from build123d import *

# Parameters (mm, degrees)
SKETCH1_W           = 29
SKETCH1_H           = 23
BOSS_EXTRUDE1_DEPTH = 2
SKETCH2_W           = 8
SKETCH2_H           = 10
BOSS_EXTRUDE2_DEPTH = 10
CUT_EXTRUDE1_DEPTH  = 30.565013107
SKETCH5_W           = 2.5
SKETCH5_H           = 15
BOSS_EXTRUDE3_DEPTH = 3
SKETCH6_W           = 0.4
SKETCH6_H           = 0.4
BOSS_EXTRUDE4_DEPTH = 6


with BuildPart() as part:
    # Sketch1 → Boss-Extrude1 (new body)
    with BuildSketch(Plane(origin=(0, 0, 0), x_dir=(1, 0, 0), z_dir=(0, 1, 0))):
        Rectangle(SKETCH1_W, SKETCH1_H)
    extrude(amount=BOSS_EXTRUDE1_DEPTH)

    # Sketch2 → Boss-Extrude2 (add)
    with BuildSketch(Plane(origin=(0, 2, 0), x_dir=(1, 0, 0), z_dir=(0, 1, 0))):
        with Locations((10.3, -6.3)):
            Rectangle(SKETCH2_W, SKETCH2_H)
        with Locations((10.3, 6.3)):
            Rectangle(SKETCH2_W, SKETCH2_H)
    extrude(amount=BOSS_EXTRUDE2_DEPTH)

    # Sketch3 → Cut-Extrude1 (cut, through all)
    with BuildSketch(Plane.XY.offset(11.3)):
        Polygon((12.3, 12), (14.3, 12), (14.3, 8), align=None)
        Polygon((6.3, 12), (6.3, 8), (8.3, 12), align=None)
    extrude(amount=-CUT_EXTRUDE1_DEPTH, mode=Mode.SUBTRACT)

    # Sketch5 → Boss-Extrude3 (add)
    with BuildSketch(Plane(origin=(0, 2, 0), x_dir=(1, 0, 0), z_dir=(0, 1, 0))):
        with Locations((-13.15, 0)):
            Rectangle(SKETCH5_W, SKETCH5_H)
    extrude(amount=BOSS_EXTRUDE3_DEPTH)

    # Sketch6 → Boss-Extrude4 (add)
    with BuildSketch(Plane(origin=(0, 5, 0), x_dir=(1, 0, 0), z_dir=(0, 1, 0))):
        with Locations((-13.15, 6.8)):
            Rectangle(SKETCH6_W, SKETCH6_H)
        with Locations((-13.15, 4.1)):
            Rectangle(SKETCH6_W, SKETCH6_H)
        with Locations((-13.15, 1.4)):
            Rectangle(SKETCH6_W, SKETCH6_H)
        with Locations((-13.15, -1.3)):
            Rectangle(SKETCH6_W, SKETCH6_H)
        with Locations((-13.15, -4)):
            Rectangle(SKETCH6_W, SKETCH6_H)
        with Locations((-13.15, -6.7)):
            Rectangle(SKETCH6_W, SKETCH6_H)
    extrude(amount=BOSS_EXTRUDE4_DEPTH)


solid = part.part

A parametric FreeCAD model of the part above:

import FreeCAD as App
import Part
import Sketcher


def add_polygon(sketch, points):
    """Adds a closed chain of lines whose ends are joined by coincident constraints."""
    first, n = sketch.GeometryCount, len(points)
    for a, b in zip(points, points[1:] + points[:1]):
        sketch.addGeometry(Part.LineSegment(App.Vector(*a, 0), App.Vector(*b, 0)), False)
    for i in range(n):
        sketch.addConstraint(Sketcher.Constraint("Coincident", first + i, 2, first + (i + 1) % n, 1))

doc = App.newDocument("Part")
body = doc.addObject("PartDesign::Body", "Body")

# Sketch on XZ plane
sketch1 = body.newObject("Sketcher::SketchObject", "Sketch")
sketch1.AttachmentSupport = (doc.getObject("XZ_Plane"), [""])
sketch1.MapMode = "FlatFace"
add_polygon(sketch1, [(-14, -12), (-14, 12), (14, 12), (14, -12)])  # lines 0-3
sketch1.addConstraint(Sketcher.Constraint("Vertical", 0))
sketch1.addConstraint(Sketcher.Constraint("Horizontal", 1))
sketch1.addConstraint(Sketcher.Constraint("Vertical", 2))
sketch1.addConstraint(Sketcher.Constraint("Horizontal", 3))
sketch1.addConstraint(Sketcher.Constraint("Symmetric", 0, 2, 2, 2, -1, 1))
sketch1.addConstraint(Sketcher.Constraint("DistanceX", 1, 1, 1, 2, 29.0))
sketch1.addConstraint(Sketcher.Constraint("DistanceY", 0, 1, 0, 2, 23.0))
pad1 = body.newObject("PartDesign::Pad", "Pad")
pad1.Profile = sketch1
pad1.Length = 2
pad1.Reversed = True

# Sketch on XZ plane
sketch2 = body.newObject("Sketcher::SketchObject", "Sketch001")
sketch2.AttachmentSupport = (doc.getObject("XZ_Plane"), [""])
sketch2.MapMode = "FlatFace"
sketch2.AttachmentOffset = App.Placement(App.Vector(0, 0, -2), App.Rotation())
add_polygon(sketch2, [(6, 1), (6, 11), (14, 11), (14, 1)])  # lines 0-3
add_polygon(sketch2, [(6, -11), (6, -1), (14, -1), (14, -11)])  # lines 4-7
sketch2.addConstraint(Sketcher.Constraint("Vertical", 0))
sketch2.addConstraint(Sketcher.Constraint("Horizontal", 1))
sketch2.addConstraint(Sketcher.Constraint("Vertical", 2))
sketch2.addConstraint(Sketcher.Constraint("Horizontal", 3))
sketch2.addConstraint(Sketcher.Constraint("Vertical", 4))
sketch2.addConstraint(Sketcher.Constraint("Horizontal", 5))
sketch2.addConstraint(Sketcher.Constraint("Vertical", 6))
sketch2.addConstraint(Sketcher.Constraint("Horizontal", 7))
sketch2.addConstraint(Sketcher.Constraint("Symmetric", 3, 2, 4, 2, -1))
sketch2.addConstraint(Sketcher.Constraint("Symmetric", 1, 2, 6, 2, -1))
sketch2.addConstraint(Sketcher.Constraint("DistanceX", 1, 1, 1, 2, 8.0))
sketch2.addConstraint(Sketcher.Constraint("DistanceY", 0, 1, 0, 2, 10.0))
sketch2.addConstraint(Sketcher.Constraint("DistanceX", -1, 1, 0, 2, 6.3))
sketch2.addConstraint(Sketcher.Constraint("DistanceY", -1, 1, 0, 2, 11.3))
pad2 = body.newObject("PartDesign::Pad", "Pad001")
pad2.Profile = sketch2
pad2.Length = 10
pad2.Reversed = True

# Sketch on XY plane
sketch3 = body.newObject("Sketcher::SketchObject", "Sketch002")
sketch3.AttachmentSupport = (doc.getObject("XY_Plane"), [""])
sketch3.MapMode = "FlatFace"
sketch3.AttachmentOffset = App.Placement(App.Vector(0, 0, 11.3), App.Rotation())
add_polygon(sketch3, [(14.3, 12), (12.3, 12), (14.3, 8)])  # lines 0-2
add_polygon(sketch3, [(6.3, 12), (6.3, 8), (8.3, 12)])  # lines 3-5
sketch3.addConstraint(Sketcher.Constraint("Horizontal", 0))
sketch3.addConstraint(Sketcher.Constraint("Vertical", 2))
sketch3.addConstraint(Sketcher.Constraint("Vertical", 3))
sketch3.addConstraint(Sketcher.Constraint("Horizontal", 5))
sketch3.addConstraint(Sketcher.Constraint("Horizontal", 1, 2, 3, 2))
sketch3.addConstraint(Sketcher.Constraint("Horizontal", 2, 2, 4, 2))
sketch3.addConstraint(Sketcher.Constraint("Equal", 0, 5))
sketch3.addConstraint(Sketcher.Constraint("DistanceX", 0, 2, 0, 1, 2.0))
sketch3.addConstraint(Sketcher.Constraint("DistanceY", 2, 1, 2, 2, 4.0))
sketch3.addConstraint(Sketcher.Constraint("DistanceY", -1, 1, 0, 2, 12.0))
sketch3.addConstraint(Sketcher.Constraint("DistanceX", 3, 2, 0, 2, 6.0))
sketch3.addConstraint(Sketcher.Constraint("DistanceX", -1, 1, 0, 2, 12.3))
pocket1 = body.newObject("PartDesign::Pocket", "Pocket")
pocket1.Profile = sketch3
pocket1.Type = "ThroughAll"

# Sketch on XZ plane
sketch4 = body.newObject("Sketcher::SketchObject", "Sketch003")
sketch4.AttachmentSupport = (doc.getObject("XZ_Plane"), [""])
sketch4.MapMode = "FlatFace"
sketch4.AttachmentOffset = App.Placement(App.Vector(0, 0, -2), App.Rotation())
add_polygon(sketch4, [(-14.4, -7.5), (-14.4, 7.5), (-11.9, 7.5), (-11.9, -7.5)])  # lines 0-3
sketch4.addConstraint(Sketcher.Constraint("Vertical", 0))
sketch4.addConstraint(Sketcher.Constraint("Horizontal", 1))
sketch4.addConstraint(Sketcher.Constraint("Vertical", 2))
sketch4.addConstraint(Sketcher.Constraint("Horizontal", 3))
sketch4.addConstraint(Sketcher.Constraint("DistanceY", 0, 1, 0, 2, 15.0))
sketch4.addConstraint(Sketcher.Constraint("DistanceX", 1, 1, 1, 2, 2.5))
sketch4.addConstraint(Sketcher.Constraint("DistanceX", 0, 2, -1, 1, 14.4))
sketch4.addConstraint(Sketcher.Constraint("DistanceY", -1, 1, 0, 2, 7.5))
pad3 = body.newObject("PartDesign::Pad", "Pad002")
pad3.Profile = sketch4
pad3.Length = 3
pad3.Reversed = True

# Sketch on XZ plane
sketch5 = body.newObject("Sketcher::SketchObject", "Sketch004")
sketch5.AttachmentSupport = (doc.getObject("XZ_Plane"), [""])
sketch5.MapMode = "FlatFace"
sketch5.AttachmentOffset = App.Placement(App.Vector(0, 0, -5), App.Rotation())
add_polygon(sketch5, [(-13.35, -7), (-13.35, -6.6), (-12.95, -6.6), (-12.95, -7)])  # lines 0-3
add_polygon(sketch5, [(-13.35, -4.3), (-13.35, -3.9), (-12.95, -3.9), (-12.95, -4.3)])  # lines 4-7
add_polygon(sketch5, [(-13.35, -1.6), (-13.35, -1.2), (-12.95, -1.2), (-12.95, -1.6)])  # lines 8-11
add_polygon(sketch5, [(-13.35, 1.1), (-13.35, 1.5), (-12.95, 1.5), (-12.95, 1.1)])  # lines 12-15
add_polygon(sketch5, [(-13.35, 3.8), (-13.35, 4.2), (-12.95, 4.2), (-12.95, 3.8)])  # lines 16-19
add_polygon(sketch5, [(-13.35, 6.5), (-13.35, 6.9), (-12.95, 6.9), (-12.95, 6.5)])  # lines 20-23
sketch5.addConstraint(Sketcher.Constraint("Vertical", 0))
sketch5.addConstraint(Sketcher.Constraint("Horizontal", 1))
sketch5.addConstraint(Sketcher.Constraint("Vertical", 2))
sketch5.addConstraint(Sketcher.Constraint("Horizontal", 3))
sketch5.addConstraint(Sketcher.Constraint("Vertical", 4))
sketch5.addConstraint(Sketcher.Constraint("Horizontal", 5))
sketch5.addConstraint(Sketcher.Constraint("Vertical", 6))
sketch5.addConstraint(Sketcher.Constraint("Horizontal", 7))
sketch5.addConstraint(Sketcher.Constraint("Vertical", 8))
sketch5.addConstraint(Sketcher.Constraint("Horizontal", 9))
sketch5.addConstraint(Sketcher.Constraint("Vertical", 10))
sketch5.addConstraint(Sketcher.Constraint("Horizontal", 11))
sketch5.addConstraint(Sketcher.Constraint("Vertical", 12))
sketch5.addConstraint(Sketcher.Constraint("Horizontal", 13))
sketch5.addConstraint(Sketcher.Constraint("Vertical", 14))
sketch5.addConstraint(Sketcher.Constraint("Horizontal", 15))
sketch5.addConstraint(Sketcher.Constraint("Vertical", 16))
sketch5.addConstraint(Sketcher.Constraint("Horizontal", 17))
sketch5.addConstraint(Sketcher.Constraint("Vertical", 18))
sketch5.addConstraint(Sketcher.Constraint("Horizontal", 19))
sketch5.addConstraint(Sketcher.Constraint("Vertical", 20))
sketch5.addConstraint(Sketcher.Constraint("Horizontal", 21))
sketch5.addConstraint(Sketcher.Constraint("Vertical", 22))
sketch5.addConstraint(Sketcher.Constraint("Horizontal", 23))
sketch5.addConstraint(Sketcher.Constraint("Vertical", 3, 2, 4, 2))
sketch5.addConstraint(Sketcher.Constraint("Vertical", 2, 2, 5, 2))
sketch5.addConstraint(Sketcher.Constraint("Vertical", 7, 2, 8, 2))
sketch5.addConstraint(Sketcher.Constraint("Vertical", 6, 2, 9, 2))
sketch5.addConstraint(Sketcher.Constraint("Vertical", 11, 2, 12, 2))
sketch5.addConstraint(Sketcher.Constraint("Vertical", 10, 2, 13, 2))
sketch5.addConstraint(Sketcher.Constraint("Vertical", 15, 2, 16, 2))
sketch5.addConstraint(Sketcher.Constraint("Vertical", 14, 2, 17, 2))
sketch5.addConstraint(Sketcher.Constraint("Vertical", 19, 2, 20, 2))
sketch5.addConstraint(Sketcher.Constraint("Vertical", 18, 2, 21, 2))
sketch5.addConstraint(Sketcher.Constraint("Equal", 23, 0))
sketch5.addConstraint(Sketcher.Constraint("Equal", 2, 4))
sketch5.addConstraint(Sketcher.Constraint("Equal", 6, 8))
sketch5.addConstraint(Sketcher.Constraint("Equal", 10, 12))
sketch5.addConstraint(Sketcher.Constraint("Equal", 14, 16))
sketch5.addConstraint(Sketcher.Constraint("Equal", 18, 20))
sketch5.addConstraint(Sketcher.Constraint("DistanceX", 1, 1, 1, 2, 0.4))
sketch5.addConstraint(Sketcher.Constraint("DistanceY", 2, 2, -1, 1, 7.0))
sketch5.addConstraint(Sketcher.Constraint("DistanceY", 4, 2, -1, 1, 3.9))
sketch5.addConstraint(Sketcher.Constraint("DistanceY", 8, 2, -1, 1, 1.2))
sketch5.addConstraint(Sketcher.Constraint("DistanceY", -1, 1, 12, 2, 1.5))
sketch5.addConstraint(Sketcher.Constraint("DistanceY", -1, 1, 16, 2, 4.2))
sketch5.addConstraint(Sketcher.Constraint("DistanceY", -1, 1, 20, 2, 6.9))
sketch5.addConstraint(Sketcher.Constraint("DistanceX", 0, 2, -1, 1, 13.35))
pad4 = body.newObject("PartDesign::Pad", "Pad003")
pad4.Profile = sketch5
pad4.Length = 6
pad4.Reversed = True

doc.recompute()
